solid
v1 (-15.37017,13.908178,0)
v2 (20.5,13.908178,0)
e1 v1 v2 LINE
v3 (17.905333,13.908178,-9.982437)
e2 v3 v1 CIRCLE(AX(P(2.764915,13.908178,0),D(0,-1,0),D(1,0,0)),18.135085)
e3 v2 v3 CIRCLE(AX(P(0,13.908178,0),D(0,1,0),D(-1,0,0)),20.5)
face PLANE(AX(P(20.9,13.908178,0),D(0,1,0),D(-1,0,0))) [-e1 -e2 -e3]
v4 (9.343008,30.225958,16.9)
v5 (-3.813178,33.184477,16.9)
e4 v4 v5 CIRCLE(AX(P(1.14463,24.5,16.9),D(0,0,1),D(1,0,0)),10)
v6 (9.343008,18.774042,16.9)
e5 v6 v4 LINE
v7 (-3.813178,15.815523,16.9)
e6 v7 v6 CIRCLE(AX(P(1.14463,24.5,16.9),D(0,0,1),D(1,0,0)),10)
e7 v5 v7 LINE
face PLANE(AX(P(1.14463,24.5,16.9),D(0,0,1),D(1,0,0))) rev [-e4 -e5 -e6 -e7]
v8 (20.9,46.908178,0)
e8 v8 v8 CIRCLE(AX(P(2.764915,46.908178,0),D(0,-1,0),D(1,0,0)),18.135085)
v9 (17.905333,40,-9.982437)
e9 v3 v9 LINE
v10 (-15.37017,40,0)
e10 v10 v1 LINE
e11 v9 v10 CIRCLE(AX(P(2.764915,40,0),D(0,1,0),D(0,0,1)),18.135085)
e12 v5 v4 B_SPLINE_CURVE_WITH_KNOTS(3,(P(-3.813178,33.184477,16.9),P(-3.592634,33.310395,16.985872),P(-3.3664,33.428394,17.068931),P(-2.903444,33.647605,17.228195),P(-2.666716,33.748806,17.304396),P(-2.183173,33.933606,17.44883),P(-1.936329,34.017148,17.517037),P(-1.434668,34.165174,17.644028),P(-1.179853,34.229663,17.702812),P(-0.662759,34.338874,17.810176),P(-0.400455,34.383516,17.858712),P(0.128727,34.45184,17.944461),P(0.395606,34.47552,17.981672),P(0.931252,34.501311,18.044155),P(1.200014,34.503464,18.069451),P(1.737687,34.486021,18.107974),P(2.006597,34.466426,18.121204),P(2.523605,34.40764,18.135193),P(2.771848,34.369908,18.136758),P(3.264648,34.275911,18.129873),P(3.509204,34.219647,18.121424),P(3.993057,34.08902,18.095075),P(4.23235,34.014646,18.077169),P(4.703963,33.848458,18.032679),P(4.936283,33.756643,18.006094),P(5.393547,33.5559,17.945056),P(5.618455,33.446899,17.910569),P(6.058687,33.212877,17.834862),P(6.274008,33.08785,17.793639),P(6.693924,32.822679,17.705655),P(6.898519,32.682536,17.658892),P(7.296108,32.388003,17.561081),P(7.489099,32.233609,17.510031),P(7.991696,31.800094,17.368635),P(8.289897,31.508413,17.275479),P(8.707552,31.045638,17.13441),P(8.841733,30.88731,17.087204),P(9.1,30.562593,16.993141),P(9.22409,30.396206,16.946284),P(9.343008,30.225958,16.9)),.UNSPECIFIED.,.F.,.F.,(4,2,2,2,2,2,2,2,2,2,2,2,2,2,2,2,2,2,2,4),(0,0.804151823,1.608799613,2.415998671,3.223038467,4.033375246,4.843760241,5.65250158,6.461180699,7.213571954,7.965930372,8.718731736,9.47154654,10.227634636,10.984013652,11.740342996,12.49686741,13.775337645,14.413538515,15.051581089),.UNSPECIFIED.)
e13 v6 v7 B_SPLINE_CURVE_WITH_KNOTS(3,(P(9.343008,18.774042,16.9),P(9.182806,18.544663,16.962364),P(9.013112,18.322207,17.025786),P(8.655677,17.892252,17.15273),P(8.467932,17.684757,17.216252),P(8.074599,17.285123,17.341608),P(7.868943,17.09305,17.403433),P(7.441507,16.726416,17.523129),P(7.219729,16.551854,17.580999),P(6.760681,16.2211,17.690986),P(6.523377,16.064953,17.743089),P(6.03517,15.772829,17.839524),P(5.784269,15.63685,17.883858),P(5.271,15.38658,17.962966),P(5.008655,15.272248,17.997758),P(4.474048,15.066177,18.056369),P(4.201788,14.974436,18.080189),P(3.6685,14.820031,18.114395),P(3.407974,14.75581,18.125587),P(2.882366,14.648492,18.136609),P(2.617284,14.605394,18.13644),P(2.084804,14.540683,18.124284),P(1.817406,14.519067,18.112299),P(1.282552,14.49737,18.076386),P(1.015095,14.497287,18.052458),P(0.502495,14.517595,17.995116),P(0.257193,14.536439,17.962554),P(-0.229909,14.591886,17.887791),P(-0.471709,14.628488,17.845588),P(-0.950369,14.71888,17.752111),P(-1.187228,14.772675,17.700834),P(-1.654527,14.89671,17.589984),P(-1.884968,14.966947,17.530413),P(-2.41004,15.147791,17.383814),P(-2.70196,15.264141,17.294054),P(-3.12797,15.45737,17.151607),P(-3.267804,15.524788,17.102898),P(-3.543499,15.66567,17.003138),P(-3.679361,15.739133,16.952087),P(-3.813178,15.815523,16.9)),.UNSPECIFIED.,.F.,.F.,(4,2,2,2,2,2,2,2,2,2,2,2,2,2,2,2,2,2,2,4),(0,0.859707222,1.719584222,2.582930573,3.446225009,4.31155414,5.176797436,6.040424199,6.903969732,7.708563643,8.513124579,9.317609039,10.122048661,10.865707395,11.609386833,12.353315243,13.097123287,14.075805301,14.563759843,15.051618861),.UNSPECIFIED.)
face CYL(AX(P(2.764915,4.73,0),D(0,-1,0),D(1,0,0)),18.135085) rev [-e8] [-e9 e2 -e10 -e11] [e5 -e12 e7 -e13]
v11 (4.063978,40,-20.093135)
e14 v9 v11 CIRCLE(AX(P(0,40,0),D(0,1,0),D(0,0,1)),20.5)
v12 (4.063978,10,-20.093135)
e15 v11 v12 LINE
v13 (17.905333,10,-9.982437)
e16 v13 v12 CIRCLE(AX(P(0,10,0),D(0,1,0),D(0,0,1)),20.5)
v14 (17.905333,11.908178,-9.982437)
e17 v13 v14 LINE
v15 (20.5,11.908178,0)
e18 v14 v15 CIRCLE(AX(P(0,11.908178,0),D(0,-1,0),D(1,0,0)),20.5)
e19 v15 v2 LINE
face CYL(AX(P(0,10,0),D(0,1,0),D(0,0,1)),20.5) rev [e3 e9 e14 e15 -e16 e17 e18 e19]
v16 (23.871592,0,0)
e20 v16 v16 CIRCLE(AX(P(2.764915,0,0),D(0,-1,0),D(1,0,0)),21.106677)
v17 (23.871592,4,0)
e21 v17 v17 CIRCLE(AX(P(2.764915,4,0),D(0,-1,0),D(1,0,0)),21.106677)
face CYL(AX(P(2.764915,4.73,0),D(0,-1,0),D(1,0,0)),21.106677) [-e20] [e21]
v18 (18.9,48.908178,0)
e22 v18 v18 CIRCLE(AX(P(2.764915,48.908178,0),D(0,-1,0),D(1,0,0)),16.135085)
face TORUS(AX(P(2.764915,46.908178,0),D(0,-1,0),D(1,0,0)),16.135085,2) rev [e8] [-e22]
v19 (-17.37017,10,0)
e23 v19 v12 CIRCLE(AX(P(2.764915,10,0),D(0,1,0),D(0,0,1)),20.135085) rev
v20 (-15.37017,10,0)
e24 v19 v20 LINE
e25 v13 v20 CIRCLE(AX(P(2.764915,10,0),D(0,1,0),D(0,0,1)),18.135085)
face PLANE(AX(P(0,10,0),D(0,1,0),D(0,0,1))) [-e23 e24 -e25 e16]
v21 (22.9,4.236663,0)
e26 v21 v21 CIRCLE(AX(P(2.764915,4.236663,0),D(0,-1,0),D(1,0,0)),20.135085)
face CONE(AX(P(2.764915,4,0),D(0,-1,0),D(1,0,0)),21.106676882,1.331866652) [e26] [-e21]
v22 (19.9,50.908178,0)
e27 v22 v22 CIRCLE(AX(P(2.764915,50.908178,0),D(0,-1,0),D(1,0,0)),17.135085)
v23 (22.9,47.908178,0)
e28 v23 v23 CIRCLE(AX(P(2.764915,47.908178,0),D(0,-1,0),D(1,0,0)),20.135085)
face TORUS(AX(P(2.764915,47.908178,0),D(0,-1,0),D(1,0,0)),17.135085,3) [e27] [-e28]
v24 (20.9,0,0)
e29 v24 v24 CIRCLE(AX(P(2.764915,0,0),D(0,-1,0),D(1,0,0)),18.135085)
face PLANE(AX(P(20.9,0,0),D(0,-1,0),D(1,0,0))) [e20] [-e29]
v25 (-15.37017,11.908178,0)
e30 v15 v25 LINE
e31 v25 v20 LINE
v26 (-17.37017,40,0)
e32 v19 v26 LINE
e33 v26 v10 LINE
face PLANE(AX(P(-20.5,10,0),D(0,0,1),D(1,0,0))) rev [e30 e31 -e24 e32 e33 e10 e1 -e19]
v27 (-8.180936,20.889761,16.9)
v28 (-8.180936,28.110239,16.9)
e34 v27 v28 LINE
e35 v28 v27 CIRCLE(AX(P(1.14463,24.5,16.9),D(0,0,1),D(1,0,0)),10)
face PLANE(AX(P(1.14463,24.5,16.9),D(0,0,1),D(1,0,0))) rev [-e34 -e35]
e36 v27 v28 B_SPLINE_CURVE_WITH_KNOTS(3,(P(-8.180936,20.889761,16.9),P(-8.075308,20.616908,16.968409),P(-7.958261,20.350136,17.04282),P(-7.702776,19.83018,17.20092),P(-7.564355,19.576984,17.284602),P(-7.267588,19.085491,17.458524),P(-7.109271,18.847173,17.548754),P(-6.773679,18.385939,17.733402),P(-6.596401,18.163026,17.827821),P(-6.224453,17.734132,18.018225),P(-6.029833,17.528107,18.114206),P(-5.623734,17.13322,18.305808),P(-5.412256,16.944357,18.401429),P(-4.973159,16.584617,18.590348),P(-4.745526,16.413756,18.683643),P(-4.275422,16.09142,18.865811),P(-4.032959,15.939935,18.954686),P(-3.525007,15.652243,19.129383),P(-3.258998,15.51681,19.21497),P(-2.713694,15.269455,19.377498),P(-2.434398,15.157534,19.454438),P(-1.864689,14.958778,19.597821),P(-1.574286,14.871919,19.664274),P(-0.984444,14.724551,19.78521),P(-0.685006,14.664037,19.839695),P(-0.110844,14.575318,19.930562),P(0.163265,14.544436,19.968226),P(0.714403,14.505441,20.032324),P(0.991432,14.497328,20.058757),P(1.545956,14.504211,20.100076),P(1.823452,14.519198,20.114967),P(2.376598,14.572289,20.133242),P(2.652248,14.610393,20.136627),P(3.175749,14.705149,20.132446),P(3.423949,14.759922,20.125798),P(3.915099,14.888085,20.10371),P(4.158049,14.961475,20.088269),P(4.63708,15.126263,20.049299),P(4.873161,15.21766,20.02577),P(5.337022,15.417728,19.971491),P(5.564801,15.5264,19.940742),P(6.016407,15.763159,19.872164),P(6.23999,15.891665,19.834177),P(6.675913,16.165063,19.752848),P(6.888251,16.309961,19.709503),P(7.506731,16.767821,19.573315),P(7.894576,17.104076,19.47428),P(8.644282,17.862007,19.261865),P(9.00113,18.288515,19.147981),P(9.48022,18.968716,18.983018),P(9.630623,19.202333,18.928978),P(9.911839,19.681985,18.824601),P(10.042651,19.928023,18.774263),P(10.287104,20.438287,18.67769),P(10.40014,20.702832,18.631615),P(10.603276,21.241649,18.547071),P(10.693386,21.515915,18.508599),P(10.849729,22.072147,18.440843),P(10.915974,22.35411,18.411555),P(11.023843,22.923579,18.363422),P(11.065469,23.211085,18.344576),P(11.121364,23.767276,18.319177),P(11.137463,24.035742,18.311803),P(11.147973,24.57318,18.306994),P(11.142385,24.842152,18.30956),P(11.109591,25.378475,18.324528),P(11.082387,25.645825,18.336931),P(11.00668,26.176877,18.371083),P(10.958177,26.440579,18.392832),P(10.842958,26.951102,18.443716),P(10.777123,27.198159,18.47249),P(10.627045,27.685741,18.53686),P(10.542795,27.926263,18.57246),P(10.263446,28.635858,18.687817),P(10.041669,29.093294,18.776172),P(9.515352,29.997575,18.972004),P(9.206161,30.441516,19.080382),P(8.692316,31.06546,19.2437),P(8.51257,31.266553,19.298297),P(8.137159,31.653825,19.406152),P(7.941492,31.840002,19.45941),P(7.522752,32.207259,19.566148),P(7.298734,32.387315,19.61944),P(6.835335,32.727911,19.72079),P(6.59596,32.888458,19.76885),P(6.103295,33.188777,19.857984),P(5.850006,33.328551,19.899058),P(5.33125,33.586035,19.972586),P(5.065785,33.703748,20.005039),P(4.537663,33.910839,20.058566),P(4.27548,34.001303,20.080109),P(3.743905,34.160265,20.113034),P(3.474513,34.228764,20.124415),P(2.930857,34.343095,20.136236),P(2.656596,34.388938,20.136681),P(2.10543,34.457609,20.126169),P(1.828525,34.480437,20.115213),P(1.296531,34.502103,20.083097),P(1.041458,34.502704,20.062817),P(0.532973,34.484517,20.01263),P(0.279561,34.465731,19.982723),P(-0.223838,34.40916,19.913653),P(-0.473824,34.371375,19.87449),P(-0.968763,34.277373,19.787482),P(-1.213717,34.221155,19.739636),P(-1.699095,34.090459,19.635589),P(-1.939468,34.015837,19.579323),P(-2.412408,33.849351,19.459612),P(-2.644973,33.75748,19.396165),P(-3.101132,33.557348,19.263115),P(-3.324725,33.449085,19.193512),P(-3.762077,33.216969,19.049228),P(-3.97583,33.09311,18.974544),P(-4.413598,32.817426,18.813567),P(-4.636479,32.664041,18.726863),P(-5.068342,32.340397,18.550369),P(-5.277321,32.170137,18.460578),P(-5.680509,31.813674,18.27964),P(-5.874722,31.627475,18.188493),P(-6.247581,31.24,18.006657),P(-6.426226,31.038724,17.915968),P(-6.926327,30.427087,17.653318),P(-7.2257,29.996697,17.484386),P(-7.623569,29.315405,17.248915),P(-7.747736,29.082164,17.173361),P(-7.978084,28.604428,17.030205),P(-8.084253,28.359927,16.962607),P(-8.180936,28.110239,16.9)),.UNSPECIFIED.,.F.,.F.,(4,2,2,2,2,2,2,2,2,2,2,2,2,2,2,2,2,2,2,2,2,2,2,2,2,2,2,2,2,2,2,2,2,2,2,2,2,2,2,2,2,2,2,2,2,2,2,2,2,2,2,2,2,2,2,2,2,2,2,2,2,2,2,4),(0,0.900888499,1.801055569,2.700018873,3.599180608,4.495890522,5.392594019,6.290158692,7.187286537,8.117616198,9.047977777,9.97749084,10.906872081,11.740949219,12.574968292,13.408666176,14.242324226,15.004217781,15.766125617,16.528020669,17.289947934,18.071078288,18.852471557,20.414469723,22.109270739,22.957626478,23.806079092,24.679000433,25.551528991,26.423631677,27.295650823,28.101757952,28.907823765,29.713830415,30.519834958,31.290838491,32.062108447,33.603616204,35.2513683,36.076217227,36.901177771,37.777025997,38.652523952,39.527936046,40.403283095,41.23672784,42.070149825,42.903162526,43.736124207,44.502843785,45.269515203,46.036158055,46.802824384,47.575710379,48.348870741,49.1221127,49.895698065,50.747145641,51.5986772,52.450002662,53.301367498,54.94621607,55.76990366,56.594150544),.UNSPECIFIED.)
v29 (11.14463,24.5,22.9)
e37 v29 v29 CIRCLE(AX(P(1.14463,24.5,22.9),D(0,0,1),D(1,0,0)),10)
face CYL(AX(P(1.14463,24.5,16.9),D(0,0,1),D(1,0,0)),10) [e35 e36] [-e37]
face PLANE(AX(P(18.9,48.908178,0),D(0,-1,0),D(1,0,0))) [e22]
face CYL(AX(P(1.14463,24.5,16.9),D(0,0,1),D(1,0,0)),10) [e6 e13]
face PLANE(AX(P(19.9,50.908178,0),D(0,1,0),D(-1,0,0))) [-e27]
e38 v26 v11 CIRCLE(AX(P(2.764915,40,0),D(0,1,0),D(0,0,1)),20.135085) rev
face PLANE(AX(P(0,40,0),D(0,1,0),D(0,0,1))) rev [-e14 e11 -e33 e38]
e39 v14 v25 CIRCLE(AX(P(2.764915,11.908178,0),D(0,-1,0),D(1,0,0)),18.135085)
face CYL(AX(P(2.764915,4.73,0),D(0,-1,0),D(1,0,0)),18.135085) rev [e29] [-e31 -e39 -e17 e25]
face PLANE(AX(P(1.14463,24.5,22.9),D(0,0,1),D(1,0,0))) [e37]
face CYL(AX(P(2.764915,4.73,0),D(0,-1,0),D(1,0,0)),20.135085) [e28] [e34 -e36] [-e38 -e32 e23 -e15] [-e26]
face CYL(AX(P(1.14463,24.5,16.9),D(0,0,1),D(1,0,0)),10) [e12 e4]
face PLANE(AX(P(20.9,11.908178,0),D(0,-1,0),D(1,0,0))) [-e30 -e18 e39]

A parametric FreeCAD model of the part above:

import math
import FreeCAD as App
import Part
import Sketcher

V = App.Vector

doc = App.newDocument("Part")
params = doc.addObject("Spreadsheet::Sheet", "Params")
for row, (alias, value) in enumerate([
    ("sketch1_radius", "3 mm"),
    ("sketch1_radius2", "2 mm"),
    ("sketch1_height", "4 mm"),
    ("sketch1_height2", "2 mm"),
    ("sketch1_height3", "33 mm"),
    ("revolution_angle", "360 deg"),
    ("sketch2_diameter", "20 mm"),
    ("pad1_length", "6 mm"),
    ("sketch3_radius", "20.5 mm"),
    ("pocket1_length", "30 mm"),
], start=1):
    params.set(f"A{row}", alias)
    params.set(f"B{row}", "=" + value)
    params.setAlias(f"B{row}", alias)

body = doc.addObject("PartDesign::Body", "Body")

# Sketch on XY plane
sketch1 = body.newObject("Sketcher::SketchObject", "Sketch")
sketch1.AttachmentSupport = (doc.getObject("XY_Plane"), [""])
sketch1.MapMode = "FlatFace"
sketch1.addGeometry([
    Part.LineSegment(V(20.9, 0, 0), V(23.9, 0, 0)),  # 0
    Part.LineSegment(V(23.9, 0, 0), V(23.9, 4, 0)),  # 1
    Part.LineSegment(V(23.9, 4, 0), V(22.9, 4.2, 0)),  # 2
    Part.LineSegment(V(22.9, 4.2, 0), V(22.9, 47.9, 0)),  # 3
    Part.ArcOfCircle(Part.Circle(V(19.9, 47.9, 0), V(0, 0, 1), 3), math.radians(0), math.radians(90)),  # 4
    Part.LineSegment(V(19.9, 50.9, 0), V(2.8, 50.9, 0)),  # 5
    Part.LineSegment(V(2.8, 50.9, 0), V(2.8, 48.9, 0)),  # 6
    Part.LineSegment(V(2.8, 48.9, 0), V(18.9, 48.9, 0)),  # 7
    Part.ArcOfCircle(Part.Circle(V(18.9, 46.9, 0), V(0, 0, 1), 2), math.radians(0), math.radians(90)),  # 8
    Part.LineSegment(V(20.9, 46.9, 0), V(20.9, 13.9, 0)),  # 9
    Part.LineSegment(V(20.9, 13.9, 0), V(2.8, 13.9, 0)),  # 10
    Part.LineSegment(V(2.8, 13.9, 0), V(2.8, 11.9, 0)),  # 11
    Part.LineSegment(V(2.8, 11.9, 0), V(20.9, 11.9, 0)),  # 12
    Part.LineSegment(V(20.9, 11.9, 0), V(20.9, 0, 0)),  # 13
], False)
sketch1.addGeometry(Part.LineSegment(V(2.8, 0, 0), V(2.8, 50.9, 0)), True)  # axis
sketch1.addConstraint([
    Sketcher.Constraint("Coincident", 0, 2, 1, 1),
    Sketcher.Constraint("Coincident", 1, 2, 2, 1),
    Sketcher.Constraint("Coincident", 2, 2, 3, 1),
    Sketcher.Constraint("Tangent", 3, 2, 4, 1),
    Sketcher.Constraint("Tangent", 4, 2, 5, 1),
    Sketcher.Constraint("Coincident", 5, 2, 6, 1),
    Sketcher.Constraint("Coincident", 6, 2, 7, 1),
    Sketcher.Constraint("Tangent", 7, 2, 8, 2),
    Sketcher.Constraint("Tangent", 8, 1, 9, 1),
    Sketcher.Constraint("Coincident", 9, 2, 10, 1),
    Sketcher.Constraint("Coincident", 10, 2, 11, 1),
    Sketcher.Constraint("Coincident", 11, 2, 12, 1),
    Sketcher.Constraint("Coincident", 12, 2, 13, 1),
    Sketcher.Constraint("Coincident", 13, 2, 0, 1),
    Sketcher.Constraint("Horizontal", 0),
    Sketcher.Constraint("Vertical", 1),
    Sketcher.Constraint("Vertical", 3),
    Sketcher.Constraint("Horizontal", 5),
    Sketcher.Constraint("Vertical", 6),
    Sketcher.Constraint("Horizontal", 7),
    Sketcher.Constraint("Vertical", 9),
    Sketcher.Constraint("Horizontal", 10),
    Sketcher.Constraint("Vertical", 11),
    Sketcher.Constraint("Horizontal", 12),
    Sketcher.Constraint("Vertical", 13),
    Sketcher.Constraint("Vertical", 14),
    Sketcher.Constraint("Coincident", 14, 2, 5, 2),
    Sketcher.Constraint("PointOnObject", 0, 2, -1),
    Sketcher.Constraint("PointOnObject", 14, 1, -1),
    Sketcher.Constraint("Vertical", 6, 2, 10, 2),
    Sketcher.Constraint("Vertical", 9, 2, 12, 2),
    Sketcher.Constraint("Equal", 6, 11),
    Sketcher.Constraint("Radius", 4, 3.0),
    Sketcher.Constraint("Radius", 8, 2.0),
    Sketcher.Constraint("DistanceY", 1, 1, 1, 2, 4.0),
    Sketcher.Constraint("DistanceY", 6, 2, 6, 1, 2.0),
    Sketcher.Constraint("DistanceY", 9, 2, 9, 1, 33.0),
    Sketcher.Constraint("Distance", 2, 1.0),
    Sketcher.Constraint("DistanceX", 8, 3, 4, 3, 1.0),
    Sketcher.Constraint("DistanceX", -1, 1, 4, 3, 19.9),
    Sketcher.Constraint("DistanceX", 0, 1, 0, 2, 2.971592),
    Sketcher.Constraint("DistanceY", 13, 2, 13, 1, 11.908178),
    Sketcher.Constraint("DistanceX", 5, 2, 5, 1, 17.135085),
])
sketch1.setExpression("Constraints[32]", "Params.sketch1_radius")
sketch1.setExpression("Constraints[33]", "Params.sketch1_radius2")
sketch1.setExpression("Constraints[34]", "Params.sketch1_height")
sketch1.setExpression("Constraints[35]", "Params.sketch1_height2")
sketch1.setExpression("Constraints[36]", "Params.sketch1_height3")
revolution = body.newObject("PartDesign::Revolution", "Revolution")
revolution.Profile = sketch1
revolution.ReferenceAxis = (sketch1, ["Axis0"])
revolution.setExpression("Angle", "Params.revolution_angle")

# Sketch on XY plane
sketch2 = body.newObject("Sketcher::SketchObject", "Sketch001")
sketch2.AttachmentSupport = (doc.getObject("XY_Plane"), [""])
sketch2.MapMode = "FlatFace"
sketch2.AttachmentOffset = App.Placement(V(0, 0, 22.9), App.Rotation())
sketch2.addGeometry(Part.Circle(V(1, 24, 0), V(0, 0, 1), 10), False)
sketch2.addConstraint([
    Sketcher.Constraint("Diameter", 0, 20.0),
    Sketcher.Constraint("DistanceY", -1, 1, 0, 3, 24.5),
    Sketcher.Constraint("DistanceX", -1, 1, 0, 3, 1.14463),
])
sketch2.setExpression("Constraints[0]", "Params.sketch2_diameter")
pad1 = body.newObject("PartDesign::Pad", "Pad")
pad1.Profile = sketch2
pad1.setExpression("Length", "Params.pad1_length")
pad1.Reversed = True

# Sketch on XZ plane
sketch3 = body.newObject("Sketcher::SketchObject", "Sketch002")
sketch3.AttachmentSupport = (doc.getObject("XZ_Plane"), [""])
sketch3.MapMode = "FlatFace"
sketch3.AttachmentOffset = App.Placement(V(0, 0, -40), App.Rotation())
sketch3.addGeometry([
    Part.LineSegment(V(-20, 0, 0), V(20, 0, 0)),
    Part.ArcOfCircle(Part.Circle(V(0, 0, 0), V(0, 0, 1), 20), math.radians(180), math.radians(360)),
], False)
sketch3.addConstraint([
    Sketcher.Constraint("Coincident", 0, 1, 1, 1),
    Sketcher.Constraint("Coincident", 1, 2, 0, 2),
    Sketcher.Constraint("Horizontal", 0),
    Sketcher.Constraint("Coincident", 1, 3, -1, 1),
    Sketcher.Constraint("PointOnObject", 0, 1, -1),
    Sketcher.Constraint("Radius", 1, 20.5),
])
sketch3.setExpression("Constraints[5]", "Params.sketch3_radius")
pocket1 = body.newObject("PartDesign::Pocket", "Pocket")
pocket1.Profile = sketch3
pocket1.setExpression("Length", "Params.pocket1_length")
pocket1.Reversed = True

doc.recompute()
